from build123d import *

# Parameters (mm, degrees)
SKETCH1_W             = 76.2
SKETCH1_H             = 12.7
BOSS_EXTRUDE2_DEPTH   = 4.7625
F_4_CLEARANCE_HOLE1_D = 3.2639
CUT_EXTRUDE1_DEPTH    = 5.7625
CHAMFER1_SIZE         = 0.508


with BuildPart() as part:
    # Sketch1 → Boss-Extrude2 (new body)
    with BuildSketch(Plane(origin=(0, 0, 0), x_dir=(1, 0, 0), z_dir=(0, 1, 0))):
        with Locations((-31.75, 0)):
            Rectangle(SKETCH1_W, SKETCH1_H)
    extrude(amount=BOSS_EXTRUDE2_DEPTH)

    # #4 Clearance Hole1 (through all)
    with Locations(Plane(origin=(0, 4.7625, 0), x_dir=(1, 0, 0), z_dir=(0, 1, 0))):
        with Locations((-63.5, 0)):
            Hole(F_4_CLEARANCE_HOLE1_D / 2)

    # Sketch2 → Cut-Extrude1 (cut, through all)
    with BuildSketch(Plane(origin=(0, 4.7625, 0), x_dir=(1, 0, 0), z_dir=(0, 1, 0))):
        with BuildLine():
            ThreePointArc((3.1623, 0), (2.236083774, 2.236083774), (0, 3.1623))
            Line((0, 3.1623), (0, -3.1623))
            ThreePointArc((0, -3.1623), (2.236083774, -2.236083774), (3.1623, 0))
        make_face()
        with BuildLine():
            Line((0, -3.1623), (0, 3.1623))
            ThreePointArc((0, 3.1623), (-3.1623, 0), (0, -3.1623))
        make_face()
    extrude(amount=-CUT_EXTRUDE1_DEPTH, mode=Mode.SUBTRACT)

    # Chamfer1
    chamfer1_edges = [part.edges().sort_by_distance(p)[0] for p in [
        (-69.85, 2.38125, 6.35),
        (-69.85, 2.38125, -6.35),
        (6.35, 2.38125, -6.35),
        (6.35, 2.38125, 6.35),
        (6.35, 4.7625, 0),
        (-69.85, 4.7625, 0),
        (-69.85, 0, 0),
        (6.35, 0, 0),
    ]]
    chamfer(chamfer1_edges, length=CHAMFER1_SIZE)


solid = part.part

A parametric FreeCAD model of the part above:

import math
import FreeCAD as App
import Part
import Sketcher
Q = App.Units.Quantity


def edges_at(feature, points):
    """Names of the edges that pass closest to the given points."""
    edges = feature.Shape.Edges
    near = lambda p: min(range(len(edges)), key=lambda i: edges[i].distToShape(Part.Vertex(*p))[0])
    return sorted({f"Edge{near(p) + 1}" for p in points})


def add_polygon(sketch, points):
    """Adds a closed chain of lines whose ends are joined by coincident constraints."""
    first, n = sketch.GeometryCount, len(points)
    for a, b in zip(points, points[1:] + points[:1]):
        sketch.addGeometry(Part.LineSegment(App.Vector(*a, 0), App.Vector(*b, 0)), False)
    for i in range(n):
        sketch.addConstraint(Sketcher.Constraint("Coincident", first + i, 2, first + (i + 1) % n, 1))

doc = App.newDocument("Part")
body = doc.addObject("PartDesign::Body", "Body")

sketch1 = doc.addObject("Sketcher::SketchObject", "Sketch")
body.addObject(sketch1)
sketch1.AttachmentSupport = (doc.XZ_Plane, [""])
sketch1.MapMode = "FlatFace"
add_polygon(sketch1, [(-69.85, -6.35), (-69.85, 6.35), (6.35, 6.35), (6.35, -6.35)])
sketch1.addConstraint(Sketcher.Constraint("Vertical", 0))
sketch1.addConstraint(Sketcher.Constraint("Horizontal", 1))
sketch1.addConstraint(Sketcher.Constraint("Vertical", 2))
sketch1.addConstraint(Sketcher.Constraint("Horizontal", 3))
sketch1.addConstraint(Sketcher.Constraint("DistanceX", 1, 1, 1, 2, Q("3 in")))
sketch1.addConstraint(Sketcher.Constraint("DistanceY", 0, 1, 0, 2, Q("0.5 in")))
sketch1.addConstraint(Sketcher.Constraint("DistanceX", 0, 2, -1, 1, Q("2.75 in")))
sketch1.addConstraint(Sketcher.Constraint("DistanceY", -1, 1, 0, 2, Q("0.25 in")))
pad1 = doc.addObject("PartDesign::Pad", "Pad")
body.addObject(pad1)
pad1.Profile = sketch1
pad1.Length = Q("0.1875 in")
pad1.Reversed = True

sketch2 = doc.addObject("Sketcher::SketchObject", "Sketch001")
body.addObject(sketch2)
sketch2.AttachmentSupport = (doc.XZ_Plane, [""])
sketch2.MapMode = "FlatFace"
sketch2.AttachmentOffset = App.Placement(App.Vector(0, 0, -0.1875 * 25.4), App.Rotation())
sketch2.addGeometry(Part.Circle(App.Vector(-63.5, 0, 0), App.Vector(0, 0, 1), 1.63195), False)
sketch2.addConstraint(Sketcher.Constraint("PointOnObject", 0, 3, -1))
sketch2.addConstraint(Sketcher.Constraint("Diameter", 0, Q("0.1285 in")))
sketch2.addConstraint(Sketcher.Constraint("DistanceX", 0, 3, -1, 1, Q("2.5 in")))
doc.recompute()
hole = doc.addObject("PartDesign::Hole", "Hole")
body.addObject(hole)
hole.Profile = sketch2
hole.ThreadType = "None"
hole.Diameter = Q("0.1285 in")
hole.DepthType = "ThroughAll"
hole.Reversed = True

sketch3 = doc.addObject("Sketcher::SketchObject", "Sketch002")
body.addObject(sketch3)
sketch3.AttachmentSupport = (doc.XZ_Plane, [""])
sketch3.MapMode = "FlatFace"
sketch3.AttachmentOffset = App.Placement(App.Vector(0, 0, -0.1875 * 25.4), App.Rotation())
sketch3.addGeometry(Part.ArcOfCircle(Part.Circle(App.Vector(0, 0, 0), App.Vector(0, 0, 1), 3.1623), math.radians(-90), math.radians(0)), False)
sketch3.addGeometry(Part.ArcOfCircle(Part.Circle(App.Vector(0, 0, 0), App.Vector(0, 0, 1), 3.1623), math.radians(90), math.radians(270)), False)
sketch3.addGeometry(Part.ArcOfCircle(Part.Circle(App.Vector(0, 0, 0), App.Vector(0, 0, 1), 3.1623), math.radians(0), math.radians(90)), False)
sketch3.addConstraint(Sketcher.Constraint("Tangent", 0, 1, 1, 2))
sketch3.addConstraint(Sketcher.Constraint("Tangent", 1, 1, 2, 2))
sketch3.addConstraint(Sketcher.Constraint("Tangent", 2, 1, 0, 2))
sketch3.addConstraint(Sketcher.Constraint("Coincident", 0, 3, -1, 1))
sketch3.addConstraint(Sketcher.Constraint("PointOnObject", 0, 1, -2))
sketch3.addConstraint(Sketcher.Constraint("PointOnObject", 1, 1, -2))
sketch3.addConstraint(Sketcher.Constraint("PointOnObject", 2, 1, -1))
sketch3.addConstraint(Sketcher.Constraint("Radius", 0, Q("0.1245 in")))
pocket1 = doc.addObject("PartDesign::Pocket", "Pocket")
body.addObject(pocket1)
pocket1.Profile = sketch3
pocket1.Type = "ThroughAll"
pocket1.Reversed = True
doc.recompute()

chamfer = doc.addObject("PartDesign::Chamfer", "Chamfer")
body.addObject(chamfer)
chamfer.Base = (pocket1, edges_at(pocket1, [
    (-69.85, 2.381, 6.35),
    (-69.85, 2.381, -6.35),
    (6.35, 2.381, -6.35),
    (6.35, 2.381, 6.35),
    (6.35, 4.763, 0),
    (-69.85, 4.763, 0),
    (-69.85, 0, 0),
    (6.35, 0, 0),
]))
chamfer.Size = Q("0.02 in")

doc.recompute()
